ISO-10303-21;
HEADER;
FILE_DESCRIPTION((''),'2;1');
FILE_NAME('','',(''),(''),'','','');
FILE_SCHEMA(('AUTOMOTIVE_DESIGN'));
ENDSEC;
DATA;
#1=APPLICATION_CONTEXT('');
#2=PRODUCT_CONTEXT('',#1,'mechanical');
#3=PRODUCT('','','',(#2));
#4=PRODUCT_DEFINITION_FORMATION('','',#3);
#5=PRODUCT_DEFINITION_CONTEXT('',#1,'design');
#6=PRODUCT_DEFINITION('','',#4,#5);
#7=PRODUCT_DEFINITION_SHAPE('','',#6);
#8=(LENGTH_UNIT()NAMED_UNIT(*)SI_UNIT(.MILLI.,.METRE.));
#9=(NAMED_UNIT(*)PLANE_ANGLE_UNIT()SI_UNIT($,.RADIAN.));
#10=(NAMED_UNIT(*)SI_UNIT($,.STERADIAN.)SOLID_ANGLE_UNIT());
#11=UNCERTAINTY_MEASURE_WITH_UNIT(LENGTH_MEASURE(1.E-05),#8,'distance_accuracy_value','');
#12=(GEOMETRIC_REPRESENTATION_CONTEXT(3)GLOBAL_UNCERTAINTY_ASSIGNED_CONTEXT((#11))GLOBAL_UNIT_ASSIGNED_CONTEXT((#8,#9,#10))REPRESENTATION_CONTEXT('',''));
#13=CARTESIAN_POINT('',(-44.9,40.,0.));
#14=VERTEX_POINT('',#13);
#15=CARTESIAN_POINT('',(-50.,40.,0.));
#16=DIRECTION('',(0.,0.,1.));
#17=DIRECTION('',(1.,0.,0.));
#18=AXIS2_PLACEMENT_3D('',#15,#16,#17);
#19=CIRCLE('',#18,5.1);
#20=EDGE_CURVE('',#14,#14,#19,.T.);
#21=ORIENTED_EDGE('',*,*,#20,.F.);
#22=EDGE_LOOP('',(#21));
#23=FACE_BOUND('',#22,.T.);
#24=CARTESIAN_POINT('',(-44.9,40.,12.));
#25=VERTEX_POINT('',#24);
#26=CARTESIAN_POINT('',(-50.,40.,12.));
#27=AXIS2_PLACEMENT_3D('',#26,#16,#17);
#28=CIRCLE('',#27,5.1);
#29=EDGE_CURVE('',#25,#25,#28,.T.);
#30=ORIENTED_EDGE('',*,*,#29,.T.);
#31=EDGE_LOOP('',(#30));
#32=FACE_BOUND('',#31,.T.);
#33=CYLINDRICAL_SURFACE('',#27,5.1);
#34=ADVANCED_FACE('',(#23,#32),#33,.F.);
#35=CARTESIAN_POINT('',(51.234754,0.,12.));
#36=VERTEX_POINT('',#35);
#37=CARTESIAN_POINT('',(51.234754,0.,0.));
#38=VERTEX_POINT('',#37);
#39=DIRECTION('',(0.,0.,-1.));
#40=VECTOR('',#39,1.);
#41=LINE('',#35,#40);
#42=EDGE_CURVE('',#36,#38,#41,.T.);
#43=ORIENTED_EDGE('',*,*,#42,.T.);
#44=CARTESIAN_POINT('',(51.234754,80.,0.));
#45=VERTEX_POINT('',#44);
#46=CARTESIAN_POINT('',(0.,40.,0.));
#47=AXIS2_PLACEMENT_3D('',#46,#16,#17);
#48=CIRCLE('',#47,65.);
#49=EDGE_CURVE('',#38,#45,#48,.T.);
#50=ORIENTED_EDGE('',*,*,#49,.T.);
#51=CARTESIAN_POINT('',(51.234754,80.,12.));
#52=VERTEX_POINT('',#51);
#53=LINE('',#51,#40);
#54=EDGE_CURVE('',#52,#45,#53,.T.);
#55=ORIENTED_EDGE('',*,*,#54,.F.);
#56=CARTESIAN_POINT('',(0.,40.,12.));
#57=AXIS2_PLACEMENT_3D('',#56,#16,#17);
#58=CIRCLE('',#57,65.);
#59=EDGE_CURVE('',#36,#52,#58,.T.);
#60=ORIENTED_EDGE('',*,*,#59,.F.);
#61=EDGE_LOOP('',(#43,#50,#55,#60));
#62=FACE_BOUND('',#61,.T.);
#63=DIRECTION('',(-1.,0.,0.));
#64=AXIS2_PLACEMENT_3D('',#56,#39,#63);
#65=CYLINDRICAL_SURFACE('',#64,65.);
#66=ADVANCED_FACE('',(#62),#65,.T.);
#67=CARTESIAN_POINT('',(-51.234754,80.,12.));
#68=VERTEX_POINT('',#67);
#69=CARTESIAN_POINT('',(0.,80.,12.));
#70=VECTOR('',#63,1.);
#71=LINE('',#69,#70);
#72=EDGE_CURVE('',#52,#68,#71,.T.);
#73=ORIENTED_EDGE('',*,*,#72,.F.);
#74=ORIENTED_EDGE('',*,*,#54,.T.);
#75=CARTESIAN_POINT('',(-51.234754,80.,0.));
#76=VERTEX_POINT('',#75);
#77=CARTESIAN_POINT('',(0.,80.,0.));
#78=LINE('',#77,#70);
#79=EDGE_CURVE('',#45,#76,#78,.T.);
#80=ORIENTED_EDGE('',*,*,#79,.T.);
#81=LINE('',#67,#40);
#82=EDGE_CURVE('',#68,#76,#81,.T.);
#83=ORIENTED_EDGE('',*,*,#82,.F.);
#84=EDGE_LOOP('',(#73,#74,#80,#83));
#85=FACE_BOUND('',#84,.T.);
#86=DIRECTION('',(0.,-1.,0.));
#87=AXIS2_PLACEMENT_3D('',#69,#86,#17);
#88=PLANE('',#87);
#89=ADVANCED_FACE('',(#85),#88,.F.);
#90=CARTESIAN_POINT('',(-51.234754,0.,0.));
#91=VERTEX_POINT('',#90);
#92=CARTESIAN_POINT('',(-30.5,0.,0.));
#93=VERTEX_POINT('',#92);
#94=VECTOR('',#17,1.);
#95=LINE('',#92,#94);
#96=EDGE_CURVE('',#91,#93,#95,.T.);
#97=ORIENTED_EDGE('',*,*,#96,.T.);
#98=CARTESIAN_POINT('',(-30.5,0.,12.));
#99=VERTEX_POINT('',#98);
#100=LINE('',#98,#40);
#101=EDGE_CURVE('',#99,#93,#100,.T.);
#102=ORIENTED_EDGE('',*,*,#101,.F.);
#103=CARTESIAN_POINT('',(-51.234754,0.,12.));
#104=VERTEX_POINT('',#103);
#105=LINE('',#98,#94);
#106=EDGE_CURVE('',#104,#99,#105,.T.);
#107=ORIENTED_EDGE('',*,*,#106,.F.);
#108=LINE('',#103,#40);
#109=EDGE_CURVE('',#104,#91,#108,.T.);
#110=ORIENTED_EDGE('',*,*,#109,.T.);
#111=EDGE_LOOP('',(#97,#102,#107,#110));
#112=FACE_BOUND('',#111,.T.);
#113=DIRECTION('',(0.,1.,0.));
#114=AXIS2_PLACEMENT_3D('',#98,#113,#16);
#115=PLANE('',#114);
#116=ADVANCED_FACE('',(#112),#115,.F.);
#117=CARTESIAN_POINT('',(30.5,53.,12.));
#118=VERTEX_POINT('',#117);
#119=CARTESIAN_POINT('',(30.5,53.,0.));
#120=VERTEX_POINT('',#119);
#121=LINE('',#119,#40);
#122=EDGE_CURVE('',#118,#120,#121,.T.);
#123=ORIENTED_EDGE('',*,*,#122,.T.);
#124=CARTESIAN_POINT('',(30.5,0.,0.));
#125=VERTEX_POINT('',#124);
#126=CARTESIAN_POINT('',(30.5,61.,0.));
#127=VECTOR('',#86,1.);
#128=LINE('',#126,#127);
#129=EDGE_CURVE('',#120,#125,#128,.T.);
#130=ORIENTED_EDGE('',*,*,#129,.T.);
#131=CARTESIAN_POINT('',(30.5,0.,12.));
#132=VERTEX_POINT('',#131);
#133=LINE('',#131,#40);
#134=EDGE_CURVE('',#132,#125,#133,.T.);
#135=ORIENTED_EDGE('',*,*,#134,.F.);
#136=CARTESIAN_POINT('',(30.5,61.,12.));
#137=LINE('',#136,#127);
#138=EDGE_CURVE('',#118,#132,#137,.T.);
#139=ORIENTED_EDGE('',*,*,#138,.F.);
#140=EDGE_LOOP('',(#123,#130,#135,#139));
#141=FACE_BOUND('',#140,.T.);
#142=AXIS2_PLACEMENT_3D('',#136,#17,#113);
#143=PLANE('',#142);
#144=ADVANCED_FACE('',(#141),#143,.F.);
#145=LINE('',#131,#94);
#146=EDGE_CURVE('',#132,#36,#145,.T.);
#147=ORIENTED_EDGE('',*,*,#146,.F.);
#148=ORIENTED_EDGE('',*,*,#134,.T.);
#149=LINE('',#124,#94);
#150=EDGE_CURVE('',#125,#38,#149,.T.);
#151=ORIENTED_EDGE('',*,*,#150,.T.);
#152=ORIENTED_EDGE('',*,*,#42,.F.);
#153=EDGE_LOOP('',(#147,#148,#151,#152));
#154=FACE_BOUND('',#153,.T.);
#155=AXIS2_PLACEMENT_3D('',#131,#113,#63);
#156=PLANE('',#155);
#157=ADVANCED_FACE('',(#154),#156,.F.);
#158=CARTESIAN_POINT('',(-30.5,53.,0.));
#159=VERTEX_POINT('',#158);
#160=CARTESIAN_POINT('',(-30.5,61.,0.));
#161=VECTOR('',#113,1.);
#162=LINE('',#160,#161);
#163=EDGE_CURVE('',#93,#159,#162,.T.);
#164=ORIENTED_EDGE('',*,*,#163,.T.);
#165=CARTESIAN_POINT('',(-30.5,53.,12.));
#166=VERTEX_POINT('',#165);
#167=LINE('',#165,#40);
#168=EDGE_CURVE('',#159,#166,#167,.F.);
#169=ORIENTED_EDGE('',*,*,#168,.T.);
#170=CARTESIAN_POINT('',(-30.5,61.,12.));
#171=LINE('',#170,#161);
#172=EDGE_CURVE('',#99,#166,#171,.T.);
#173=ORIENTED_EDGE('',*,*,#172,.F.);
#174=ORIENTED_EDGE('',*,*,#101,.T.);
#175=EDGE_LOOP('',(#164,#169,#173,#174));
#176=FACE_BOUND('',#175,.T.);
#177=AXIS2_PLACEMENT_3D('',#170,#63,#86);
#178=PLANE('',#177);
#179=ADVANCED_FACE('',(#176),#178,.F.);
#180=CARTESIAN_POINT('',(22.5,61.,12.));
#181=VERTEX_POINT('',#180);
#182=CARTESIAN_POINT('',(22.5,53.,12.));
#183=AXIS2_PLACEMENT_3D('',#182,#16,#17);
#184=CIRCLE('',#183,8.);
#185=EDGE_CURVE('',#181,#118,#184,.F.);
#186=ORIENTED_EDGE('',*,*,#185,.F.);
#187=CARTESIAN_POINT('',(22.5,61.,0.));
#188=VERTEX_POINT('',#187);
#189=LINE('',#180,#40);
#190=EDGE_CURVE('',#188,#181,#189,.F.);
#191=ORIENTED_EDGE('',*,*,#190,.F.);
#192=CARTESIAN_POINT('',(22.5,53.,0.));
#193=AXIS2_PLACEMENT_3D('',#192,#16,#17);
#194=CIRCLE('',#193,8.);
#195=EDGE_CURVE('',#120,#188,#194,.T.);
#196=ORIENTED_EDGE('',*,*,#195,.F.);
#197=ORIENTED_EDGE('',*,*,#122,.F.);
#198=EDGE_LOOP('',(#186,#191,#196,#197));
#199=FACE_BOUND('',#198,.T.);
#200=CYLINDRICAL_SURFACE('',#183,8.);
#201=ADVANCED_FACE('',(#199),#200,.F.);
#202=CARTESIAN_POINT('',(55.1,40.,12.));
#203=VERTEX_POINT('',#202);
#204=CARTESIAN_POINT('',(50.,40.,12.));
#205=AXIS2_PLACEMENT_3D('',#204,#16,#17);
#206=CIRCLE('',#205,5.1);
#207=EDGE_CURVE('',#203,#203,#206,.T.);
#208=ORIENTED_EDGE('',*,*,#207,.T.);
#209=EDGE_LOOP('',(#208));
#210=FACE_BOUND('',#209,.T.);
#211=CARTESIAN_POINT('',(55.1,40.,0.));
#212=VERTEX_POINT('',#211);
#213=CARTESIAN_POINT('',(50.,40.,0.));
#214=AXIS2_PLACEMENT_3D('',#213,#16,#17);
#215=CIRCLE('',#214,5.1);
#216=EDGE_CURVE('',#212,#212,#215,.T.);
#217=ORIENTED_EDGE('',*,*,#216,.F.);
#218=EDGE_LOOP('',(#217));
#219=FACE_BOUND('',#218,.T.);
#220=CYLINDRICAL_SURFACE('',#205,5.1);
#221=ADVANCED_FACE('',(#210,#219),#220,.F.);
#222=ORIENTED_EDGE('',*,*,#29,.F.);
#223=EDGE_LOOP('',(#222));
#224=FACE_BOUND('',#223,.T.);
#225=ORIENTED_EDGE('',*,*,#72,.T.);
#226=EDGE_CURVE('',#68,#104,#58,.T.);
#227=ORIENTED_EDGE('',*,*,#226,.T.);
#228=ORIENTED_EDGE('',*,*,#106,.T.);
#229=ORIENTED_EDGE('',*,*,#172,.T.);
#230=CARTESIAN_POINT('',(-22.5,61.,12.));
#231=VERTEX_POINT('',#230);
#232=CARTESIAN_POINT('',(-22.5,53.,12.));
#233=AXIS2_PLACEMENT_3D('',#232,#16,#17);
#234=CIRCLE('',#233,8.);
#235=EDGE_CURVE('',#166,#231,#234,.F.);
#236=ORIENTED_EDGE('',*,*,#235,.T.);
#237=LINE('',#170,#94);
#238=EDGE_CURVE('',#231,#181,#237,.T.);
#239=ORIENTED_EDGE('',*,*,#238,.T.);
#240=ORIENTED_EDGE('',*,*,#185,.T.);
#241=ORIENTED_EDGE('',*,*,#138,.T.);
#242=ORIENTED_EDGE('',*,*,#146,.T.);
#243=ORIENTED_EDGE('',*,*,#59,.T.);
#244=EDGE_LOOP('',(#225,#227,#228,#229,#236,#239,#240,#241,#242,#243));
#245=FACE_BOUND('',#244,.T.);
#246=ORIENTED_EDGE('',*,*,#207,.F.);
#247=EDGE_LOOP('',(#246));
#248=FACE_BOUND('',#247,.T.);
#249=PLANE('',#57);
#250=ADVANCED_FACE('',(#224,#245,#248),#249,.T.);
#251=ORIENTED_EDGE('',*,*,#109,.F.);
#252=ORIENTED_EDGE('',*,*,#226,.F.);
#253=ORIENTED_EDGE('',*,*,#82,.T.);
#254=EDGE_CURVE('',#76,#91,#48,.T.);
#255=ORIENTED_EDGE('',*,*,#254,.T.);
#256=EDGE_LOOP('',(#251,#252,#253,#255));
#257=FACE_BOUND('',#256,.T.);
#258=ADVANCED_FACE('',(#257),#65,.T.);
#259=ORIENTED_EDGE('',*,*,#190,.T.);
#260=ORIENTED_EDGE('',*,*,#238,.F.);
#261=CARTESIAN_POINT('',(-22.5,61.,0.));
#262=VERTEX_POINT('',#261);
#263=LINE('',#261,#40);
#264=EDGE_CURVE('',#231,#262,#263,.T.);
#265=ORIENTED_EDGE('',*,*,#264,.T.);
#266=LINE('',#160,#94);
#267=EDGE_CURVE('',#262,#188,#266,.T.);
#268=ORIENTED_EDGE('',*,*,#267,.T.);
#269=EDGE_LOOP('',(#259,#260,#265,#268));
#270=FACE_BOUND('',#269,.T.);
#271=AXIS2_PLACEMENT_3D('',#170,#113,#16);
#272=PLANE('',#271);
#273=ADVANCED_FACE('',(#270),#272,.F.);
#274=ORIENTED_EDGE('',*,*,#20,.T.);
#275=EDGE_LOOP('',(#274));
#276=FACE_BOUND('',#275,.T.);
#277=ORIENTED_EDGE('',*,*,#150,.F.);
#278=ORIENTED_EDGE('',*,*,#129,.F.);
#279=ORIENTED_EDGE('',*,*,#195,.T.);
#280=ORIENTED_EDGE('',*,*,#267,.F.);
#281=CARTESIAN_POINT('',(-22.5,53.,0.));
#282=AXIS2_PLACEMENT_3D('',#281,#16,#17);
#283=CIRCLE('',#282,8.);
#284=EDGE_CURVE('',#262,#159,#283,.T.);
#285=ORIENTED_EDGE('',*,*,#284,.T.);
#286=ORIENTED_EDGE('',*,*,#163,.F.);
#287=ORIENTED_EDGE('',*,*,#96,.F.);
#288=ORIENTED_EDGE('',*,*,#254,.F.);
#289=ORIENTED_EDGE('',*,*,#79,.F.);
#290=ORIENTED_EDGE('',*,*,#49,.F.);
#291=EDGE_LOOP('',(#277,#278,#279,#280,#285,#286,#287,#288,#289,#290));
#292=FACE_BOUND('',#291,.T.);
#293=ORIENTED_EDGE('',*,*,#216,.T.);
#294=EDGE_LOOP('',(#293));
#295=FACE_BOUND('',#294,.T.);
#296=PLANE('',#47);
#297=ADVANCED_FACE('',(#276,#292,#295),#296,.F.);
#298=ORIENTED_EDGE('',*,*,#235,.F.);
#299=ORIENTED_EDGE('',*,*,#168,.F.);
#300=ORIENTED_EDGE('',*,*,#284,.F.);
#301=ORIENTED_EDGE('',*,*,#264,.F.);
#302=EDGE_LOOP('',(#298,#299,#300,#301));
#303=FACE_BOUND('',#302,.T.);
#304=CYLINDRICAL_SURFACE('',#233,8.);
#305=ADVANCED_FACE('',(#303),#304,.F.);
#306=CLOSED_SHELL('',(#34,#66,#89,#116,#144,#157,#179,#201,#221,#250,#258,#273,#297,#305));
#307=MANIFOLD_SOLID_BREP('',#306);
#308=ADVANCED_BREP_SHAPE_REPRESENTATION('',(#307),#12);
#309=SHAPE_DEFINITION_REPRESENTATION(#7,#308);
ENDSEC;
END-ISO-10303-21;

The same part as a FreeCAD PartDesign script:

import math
import FreeCAD as App
import Part
import Sketcher
from FreeCAD import Vector
Q = App.Units.Quantity


def edges_at(feature, points):
    """Names of the edges that pass closest to the given points."""
    edges = feature.Shape.Edges
    near = lambda p: min(range(len(edges)), key=lambda i: edges[i].distToShape(Part.Vertex(*p))[0])
    return sorted({f"Edge{near(p) + 1}" for p in points})

doc = App.newDocument("Part")
body = doc.addObject("PartDesign::Body", "Body")

sketch1 = body.newObject("Sketcher::SketchObject", "Sketch")
sketch1.AttachmentSupport = (doc.getObject("XY_Plane"), [""])
sketch1.MapMode = "FlatFace"
sketch1.addGeometry([
    Part.LineSegment(Vector(-30, 61, 0), Vector(30, 61, 0)),
    Part.LineSegment(Vector(30, 61, 0), Vector(30, 0, 0)),
    Part.LineSegment(Vector(30, 0, 0), Vector(51, 0, 0)),
    Part.ArcOfCircle(Part.Circle(Vector(0, 40, 0), Vector(0, 0, 1), 65), math.radians(-38), math.radians(38)),
    Part.LineSegment(Vector(51, 80, 0), Vector(-51, 80, 0)),
    Part.ArcOfCircle(Part.Circle(Vector(0, 40, 0), Vector(0, 0, 1), 65), math.radians(142), math.radians(218)),
    Part.LineSegment(Vector(-51, 0, 0), Vector(-30, 0, 0)),
    Part.LineSegment(Vector(-30, 0, 0), Vector(-30, 61, 0)),
], False)
sketch1.addConstraint([
    Sketcher.Constraint("Coincident", 0, 2, 1, 1),
    Sketcher.Constraint("Coincident", 1, 2, 2, 1),
    Sketcher.Constraint("Coincident", 2, 2, 3, 1),
    Sketcher.Constraint("Coincident", 3, 2, 4, 1),
    Sketcher.Constraint("Coincident", 4, 2, 5, 1),
    Sketcher.Constraint("Coincident", 5, 2, 6, 1),
    Sketcher.Constraint("Coincident", 6, 2, 7, 1),
    Sketcher.Constraint("Coincident", 7, 2, 0, 1),
    Sketcher.Constraint("Horizontal", 0),
    Sketcher.Constraint("Vertical", 1),
    Sketcher.Constraint("Horizontal", 2),
    Sketcher.Constraint("Horizontal", 4),
    Sketcher.Constraint("Horizontal", 6),
    Sketcher.Constraint("Vertical", 7),
    Sketcher.Constraint("Coincident", 5, 3, 3, 3),
    Sketcher.Constraint("Equal", 3, 5),
    Sketcher.Constraint("Symmetric", 2, 2, 5, 2, -1, 1),
    Sketcher.Constraint("Symmetric", 1, 2, 6, 2, -2),
    Sketcher.Constraint("Vertical", 2, 2, 3, 2),
    Sketcher.Constraint("Equal", 0, 1),
    Sketcher.Constraint("Radius", 3, Q("65 mm")),
    Sketcher.Constraint("DistanceX", 0, 1, 0, 2, Q("61 mm")),
    Sketcher.Constraint("DistanceY", -1, 1, 3, 3, Q("40 mm")),
])
pad1 = body.newObject("PartDesign::Pad", "Pad")
pad1.Profile = sketch1
pad1.Length = 12

sketch2 = body.newObject("Sketcher::SketchObject", "Sketch001")
sketch2.AttachmentSupport = (doc.getObject("XY_Plane"), [""])
sketch2.MapMode = "FlatFace"
sketch2.AttachmentOffset = App.Placement(Vector(0, 0, 12), App.Rotation())
sketch2.addGeometry([
    Part.Circle(Vector(-50, 40, 0), Vector(0, 0, 1), 5),
    Part.Circle(Vector(50, 40, 0), Vector(0, 0, 1), 5),
], False)
sketch2.addConstraint([
    Sketcher.Constraint("Equal", 0, 1),
    Sketcher.Constraint("Symmetric", 0, 3, 1, 3, -2),
    Sketcher.Constraint("Diameter", 0, Q("10.2 mm")),
    Sketcher.Constraint("DistanceX", 0, 3, -1, 1, Q("50 mm")),
    Sketcher.Constraint("DistanceY", -1, 1, 0, 3, Q("40 mm")),
])
doc.recompute()
hole = body.newObject("PartDesign::Hole", "Hole")
hole.Profile = sketch2
hole.ThreadType = "None"
hole.Diameter = 10.2
hole.DepthType = "Dimension"
hole.Depth = 32.75
hole.DrillPoint = "Angled"
hole.DrillPointAngle = 118
doc.recompute()

fillet = body.newObject("PartDesign::Fillet", "Fillet")
fillet.Base = (hole, edges_at(hole, [(30.5, 61, 6), (-30.5, 61, 6)]))
fillet.Radius = 8

doc.recompute()
